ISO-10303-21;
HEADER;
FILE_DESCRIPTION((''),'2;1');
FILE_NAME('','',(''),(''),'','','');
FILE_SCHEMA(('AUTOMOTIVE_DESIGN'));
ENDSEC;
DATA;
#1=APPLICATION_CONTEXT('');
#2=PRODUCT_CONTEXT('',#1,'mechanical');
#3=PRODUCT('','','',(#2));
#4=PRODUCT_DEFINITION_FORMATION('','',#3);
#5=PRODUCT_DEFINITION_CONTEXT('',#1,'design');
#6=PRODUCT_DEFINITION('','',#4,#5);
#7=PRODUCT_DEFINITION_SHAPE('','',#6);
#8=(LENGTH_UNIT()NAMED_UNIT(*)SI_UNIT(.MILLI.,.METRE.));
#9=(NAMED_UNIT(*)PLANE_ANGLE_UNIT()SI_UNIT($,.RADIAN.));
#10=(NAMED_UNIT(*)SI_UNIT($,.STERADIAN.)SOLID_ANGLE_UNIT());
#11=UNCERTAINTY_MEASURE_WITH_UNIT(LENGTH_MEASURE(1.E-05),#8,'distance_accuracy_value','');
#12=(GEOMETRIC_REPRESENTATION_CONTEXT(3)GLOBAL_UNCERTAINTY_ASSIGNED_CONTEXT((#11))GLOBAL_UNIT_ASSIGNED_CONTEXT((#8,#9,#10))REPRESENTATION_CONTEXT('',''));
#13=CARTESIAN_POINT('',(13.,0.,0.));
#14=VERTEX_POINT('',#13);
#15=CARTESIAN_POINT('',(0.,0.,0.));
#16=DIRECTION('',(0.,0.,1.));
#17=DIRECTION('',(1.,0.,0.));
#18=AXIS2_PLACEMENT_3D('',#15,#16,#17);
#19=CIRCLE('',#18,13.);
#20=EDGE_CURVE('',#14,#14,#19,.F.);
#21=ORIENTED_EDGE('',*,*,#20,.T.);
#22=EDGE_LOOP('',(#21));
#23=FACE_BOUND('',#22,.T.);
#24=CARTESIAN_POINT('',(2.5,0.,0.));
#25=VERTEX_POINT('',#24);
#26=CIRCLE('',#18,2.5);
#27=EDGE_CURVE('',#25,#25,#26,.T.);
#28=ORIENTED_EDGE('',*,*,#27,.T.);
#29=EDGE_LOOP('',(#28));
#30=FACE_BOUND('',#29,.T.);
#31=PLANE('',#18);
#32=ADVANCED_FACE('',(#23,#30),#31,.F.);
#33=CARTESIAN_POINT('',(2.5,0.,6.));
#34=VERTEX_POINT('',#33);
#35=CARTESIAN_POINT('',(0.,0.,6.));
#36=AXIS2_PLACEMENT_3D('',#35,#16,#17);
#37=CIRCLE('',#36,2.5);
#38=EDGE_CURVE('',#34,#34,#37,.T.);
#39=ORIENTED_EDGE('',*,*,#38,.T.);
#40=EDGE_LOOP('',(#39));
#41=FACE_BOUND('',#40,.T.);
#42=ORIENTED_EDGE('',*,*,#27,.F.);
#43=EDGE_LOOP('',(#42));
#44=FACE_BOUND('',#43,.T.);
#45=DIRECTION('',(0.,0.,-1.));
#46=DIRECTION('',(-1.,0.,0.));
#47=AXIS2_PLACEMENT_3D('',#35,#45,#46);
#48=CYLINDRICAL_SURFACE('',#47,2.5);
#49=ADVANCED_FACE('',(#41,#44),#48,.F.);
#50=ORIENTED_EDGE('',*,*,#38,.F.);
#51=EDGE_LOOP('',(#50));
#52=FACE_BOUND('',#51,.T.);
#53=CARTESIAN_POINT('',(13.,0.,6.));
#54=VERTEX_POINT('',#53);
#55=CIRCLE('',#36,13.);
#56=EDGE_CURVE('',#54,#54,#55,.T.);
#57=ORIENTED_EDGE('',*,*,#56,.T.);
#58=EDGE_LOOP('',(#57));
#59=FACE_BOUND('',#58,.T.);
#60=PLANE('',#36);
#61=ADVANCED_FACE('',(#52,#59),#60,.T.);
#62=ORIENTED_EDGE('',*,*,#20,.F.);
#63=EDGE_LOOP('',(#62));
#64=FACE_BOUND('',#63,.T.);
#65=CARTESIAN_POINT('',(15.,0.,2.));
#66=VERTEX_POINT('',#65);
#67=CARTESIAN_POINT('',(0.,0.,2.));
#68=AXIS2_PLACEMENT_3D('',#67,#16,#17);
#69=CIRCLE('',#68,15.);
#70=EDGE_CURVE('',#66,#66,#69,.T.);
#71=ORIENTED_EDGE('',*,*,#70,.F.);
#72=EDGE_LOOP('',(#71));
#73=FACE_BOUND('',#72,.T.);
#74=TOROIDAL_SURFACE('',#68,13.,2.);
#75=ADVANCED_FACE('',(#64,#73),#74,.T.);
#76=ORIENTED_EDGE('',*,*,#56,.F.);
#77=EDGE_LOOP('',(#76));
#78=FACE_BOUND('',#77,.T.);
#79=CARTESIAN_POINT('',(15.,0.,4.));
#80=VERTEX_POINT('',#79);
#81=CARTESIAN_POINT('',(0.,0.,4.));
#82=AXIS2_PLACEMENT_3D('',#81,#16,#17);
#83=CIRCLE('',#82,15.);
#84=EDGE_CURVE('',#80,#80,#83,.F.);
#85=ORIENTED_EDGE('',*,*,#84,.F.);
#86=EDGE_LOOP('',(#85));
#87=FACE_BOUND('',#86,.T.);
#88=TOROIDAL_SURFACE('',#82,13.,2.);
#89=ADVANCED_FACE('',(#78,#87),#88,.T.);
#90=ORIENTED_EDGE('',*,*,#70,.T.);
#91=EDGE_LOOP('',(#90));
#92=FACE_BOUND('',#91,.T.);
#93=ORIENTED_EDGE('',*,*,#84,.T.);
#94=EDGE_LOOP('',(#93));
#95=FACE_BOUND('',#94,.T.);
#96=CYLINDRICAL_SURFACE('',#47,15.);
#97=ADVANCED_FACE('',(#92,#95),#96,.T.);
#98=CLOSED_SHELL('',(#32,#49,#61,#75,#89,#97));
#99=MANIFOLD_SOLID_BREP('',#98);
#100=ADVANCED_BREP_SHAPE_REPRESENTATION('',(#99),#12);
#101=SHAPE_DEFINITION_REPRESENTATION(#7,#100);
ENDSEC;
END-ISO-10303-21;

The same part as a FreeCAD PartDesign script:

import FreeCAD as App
import Part
import Sketcher


def edges_at(feature, points):
    """Names of the edges that pass closest to the given points."""
    edges = feature.Shape.Edges
    near = lambda p: min(range(len(edges)), key=lambda i: edges[i].distToShape(Part.Vertex(*p))[0])
    return sorted({f"Edge{near(p) + 1}" for p in points})

doc = App.newDocument("Part")
body = doc.addObject("PartDesign::Body", "Body")

# Sketch on XY plane
sketch1 = body.newObject("Sketcher::SketchObject", "Sketch")
sketch1.AttachmentSupport = (doc.getObject("XY_Plane"), [""])
sketch1.MapMode = "FlatFace"
sketch1.addGeometry([
    Part.Circle(App.Vector(0, 0, 0), App.Vector(0, 0, 1), 15),
    Part.Circle(App.Vector(0, 0, 0), App.Vector(0, 0, 1), 2.5),
], False)
sketch1.addConstraint([
    Sketcher.Constraint("Coincident", 0, 3, -1, 1),
    Sketcher.Constraint("Coincident", 1, 3, -1, 1),
    Sketcher.Constraint("Diameter", 0, 30.0),
    Sketcher.Constraint("Diameter", 1, 5.0),
])
pad1 = body.newObject("PartDesign::Pad", "Pad")
pad1.Profile = sketch1
pad1.Length = 6
doc.recompute()

fillet = body.newObject("PartDesign::Fillet", "Fillet")
fillet.Base = (pad1, edges_at(pad1, [(-15, 0, 0), (-15, 0, 6)]))
fillet.Radius = 2

doc.recompute()
